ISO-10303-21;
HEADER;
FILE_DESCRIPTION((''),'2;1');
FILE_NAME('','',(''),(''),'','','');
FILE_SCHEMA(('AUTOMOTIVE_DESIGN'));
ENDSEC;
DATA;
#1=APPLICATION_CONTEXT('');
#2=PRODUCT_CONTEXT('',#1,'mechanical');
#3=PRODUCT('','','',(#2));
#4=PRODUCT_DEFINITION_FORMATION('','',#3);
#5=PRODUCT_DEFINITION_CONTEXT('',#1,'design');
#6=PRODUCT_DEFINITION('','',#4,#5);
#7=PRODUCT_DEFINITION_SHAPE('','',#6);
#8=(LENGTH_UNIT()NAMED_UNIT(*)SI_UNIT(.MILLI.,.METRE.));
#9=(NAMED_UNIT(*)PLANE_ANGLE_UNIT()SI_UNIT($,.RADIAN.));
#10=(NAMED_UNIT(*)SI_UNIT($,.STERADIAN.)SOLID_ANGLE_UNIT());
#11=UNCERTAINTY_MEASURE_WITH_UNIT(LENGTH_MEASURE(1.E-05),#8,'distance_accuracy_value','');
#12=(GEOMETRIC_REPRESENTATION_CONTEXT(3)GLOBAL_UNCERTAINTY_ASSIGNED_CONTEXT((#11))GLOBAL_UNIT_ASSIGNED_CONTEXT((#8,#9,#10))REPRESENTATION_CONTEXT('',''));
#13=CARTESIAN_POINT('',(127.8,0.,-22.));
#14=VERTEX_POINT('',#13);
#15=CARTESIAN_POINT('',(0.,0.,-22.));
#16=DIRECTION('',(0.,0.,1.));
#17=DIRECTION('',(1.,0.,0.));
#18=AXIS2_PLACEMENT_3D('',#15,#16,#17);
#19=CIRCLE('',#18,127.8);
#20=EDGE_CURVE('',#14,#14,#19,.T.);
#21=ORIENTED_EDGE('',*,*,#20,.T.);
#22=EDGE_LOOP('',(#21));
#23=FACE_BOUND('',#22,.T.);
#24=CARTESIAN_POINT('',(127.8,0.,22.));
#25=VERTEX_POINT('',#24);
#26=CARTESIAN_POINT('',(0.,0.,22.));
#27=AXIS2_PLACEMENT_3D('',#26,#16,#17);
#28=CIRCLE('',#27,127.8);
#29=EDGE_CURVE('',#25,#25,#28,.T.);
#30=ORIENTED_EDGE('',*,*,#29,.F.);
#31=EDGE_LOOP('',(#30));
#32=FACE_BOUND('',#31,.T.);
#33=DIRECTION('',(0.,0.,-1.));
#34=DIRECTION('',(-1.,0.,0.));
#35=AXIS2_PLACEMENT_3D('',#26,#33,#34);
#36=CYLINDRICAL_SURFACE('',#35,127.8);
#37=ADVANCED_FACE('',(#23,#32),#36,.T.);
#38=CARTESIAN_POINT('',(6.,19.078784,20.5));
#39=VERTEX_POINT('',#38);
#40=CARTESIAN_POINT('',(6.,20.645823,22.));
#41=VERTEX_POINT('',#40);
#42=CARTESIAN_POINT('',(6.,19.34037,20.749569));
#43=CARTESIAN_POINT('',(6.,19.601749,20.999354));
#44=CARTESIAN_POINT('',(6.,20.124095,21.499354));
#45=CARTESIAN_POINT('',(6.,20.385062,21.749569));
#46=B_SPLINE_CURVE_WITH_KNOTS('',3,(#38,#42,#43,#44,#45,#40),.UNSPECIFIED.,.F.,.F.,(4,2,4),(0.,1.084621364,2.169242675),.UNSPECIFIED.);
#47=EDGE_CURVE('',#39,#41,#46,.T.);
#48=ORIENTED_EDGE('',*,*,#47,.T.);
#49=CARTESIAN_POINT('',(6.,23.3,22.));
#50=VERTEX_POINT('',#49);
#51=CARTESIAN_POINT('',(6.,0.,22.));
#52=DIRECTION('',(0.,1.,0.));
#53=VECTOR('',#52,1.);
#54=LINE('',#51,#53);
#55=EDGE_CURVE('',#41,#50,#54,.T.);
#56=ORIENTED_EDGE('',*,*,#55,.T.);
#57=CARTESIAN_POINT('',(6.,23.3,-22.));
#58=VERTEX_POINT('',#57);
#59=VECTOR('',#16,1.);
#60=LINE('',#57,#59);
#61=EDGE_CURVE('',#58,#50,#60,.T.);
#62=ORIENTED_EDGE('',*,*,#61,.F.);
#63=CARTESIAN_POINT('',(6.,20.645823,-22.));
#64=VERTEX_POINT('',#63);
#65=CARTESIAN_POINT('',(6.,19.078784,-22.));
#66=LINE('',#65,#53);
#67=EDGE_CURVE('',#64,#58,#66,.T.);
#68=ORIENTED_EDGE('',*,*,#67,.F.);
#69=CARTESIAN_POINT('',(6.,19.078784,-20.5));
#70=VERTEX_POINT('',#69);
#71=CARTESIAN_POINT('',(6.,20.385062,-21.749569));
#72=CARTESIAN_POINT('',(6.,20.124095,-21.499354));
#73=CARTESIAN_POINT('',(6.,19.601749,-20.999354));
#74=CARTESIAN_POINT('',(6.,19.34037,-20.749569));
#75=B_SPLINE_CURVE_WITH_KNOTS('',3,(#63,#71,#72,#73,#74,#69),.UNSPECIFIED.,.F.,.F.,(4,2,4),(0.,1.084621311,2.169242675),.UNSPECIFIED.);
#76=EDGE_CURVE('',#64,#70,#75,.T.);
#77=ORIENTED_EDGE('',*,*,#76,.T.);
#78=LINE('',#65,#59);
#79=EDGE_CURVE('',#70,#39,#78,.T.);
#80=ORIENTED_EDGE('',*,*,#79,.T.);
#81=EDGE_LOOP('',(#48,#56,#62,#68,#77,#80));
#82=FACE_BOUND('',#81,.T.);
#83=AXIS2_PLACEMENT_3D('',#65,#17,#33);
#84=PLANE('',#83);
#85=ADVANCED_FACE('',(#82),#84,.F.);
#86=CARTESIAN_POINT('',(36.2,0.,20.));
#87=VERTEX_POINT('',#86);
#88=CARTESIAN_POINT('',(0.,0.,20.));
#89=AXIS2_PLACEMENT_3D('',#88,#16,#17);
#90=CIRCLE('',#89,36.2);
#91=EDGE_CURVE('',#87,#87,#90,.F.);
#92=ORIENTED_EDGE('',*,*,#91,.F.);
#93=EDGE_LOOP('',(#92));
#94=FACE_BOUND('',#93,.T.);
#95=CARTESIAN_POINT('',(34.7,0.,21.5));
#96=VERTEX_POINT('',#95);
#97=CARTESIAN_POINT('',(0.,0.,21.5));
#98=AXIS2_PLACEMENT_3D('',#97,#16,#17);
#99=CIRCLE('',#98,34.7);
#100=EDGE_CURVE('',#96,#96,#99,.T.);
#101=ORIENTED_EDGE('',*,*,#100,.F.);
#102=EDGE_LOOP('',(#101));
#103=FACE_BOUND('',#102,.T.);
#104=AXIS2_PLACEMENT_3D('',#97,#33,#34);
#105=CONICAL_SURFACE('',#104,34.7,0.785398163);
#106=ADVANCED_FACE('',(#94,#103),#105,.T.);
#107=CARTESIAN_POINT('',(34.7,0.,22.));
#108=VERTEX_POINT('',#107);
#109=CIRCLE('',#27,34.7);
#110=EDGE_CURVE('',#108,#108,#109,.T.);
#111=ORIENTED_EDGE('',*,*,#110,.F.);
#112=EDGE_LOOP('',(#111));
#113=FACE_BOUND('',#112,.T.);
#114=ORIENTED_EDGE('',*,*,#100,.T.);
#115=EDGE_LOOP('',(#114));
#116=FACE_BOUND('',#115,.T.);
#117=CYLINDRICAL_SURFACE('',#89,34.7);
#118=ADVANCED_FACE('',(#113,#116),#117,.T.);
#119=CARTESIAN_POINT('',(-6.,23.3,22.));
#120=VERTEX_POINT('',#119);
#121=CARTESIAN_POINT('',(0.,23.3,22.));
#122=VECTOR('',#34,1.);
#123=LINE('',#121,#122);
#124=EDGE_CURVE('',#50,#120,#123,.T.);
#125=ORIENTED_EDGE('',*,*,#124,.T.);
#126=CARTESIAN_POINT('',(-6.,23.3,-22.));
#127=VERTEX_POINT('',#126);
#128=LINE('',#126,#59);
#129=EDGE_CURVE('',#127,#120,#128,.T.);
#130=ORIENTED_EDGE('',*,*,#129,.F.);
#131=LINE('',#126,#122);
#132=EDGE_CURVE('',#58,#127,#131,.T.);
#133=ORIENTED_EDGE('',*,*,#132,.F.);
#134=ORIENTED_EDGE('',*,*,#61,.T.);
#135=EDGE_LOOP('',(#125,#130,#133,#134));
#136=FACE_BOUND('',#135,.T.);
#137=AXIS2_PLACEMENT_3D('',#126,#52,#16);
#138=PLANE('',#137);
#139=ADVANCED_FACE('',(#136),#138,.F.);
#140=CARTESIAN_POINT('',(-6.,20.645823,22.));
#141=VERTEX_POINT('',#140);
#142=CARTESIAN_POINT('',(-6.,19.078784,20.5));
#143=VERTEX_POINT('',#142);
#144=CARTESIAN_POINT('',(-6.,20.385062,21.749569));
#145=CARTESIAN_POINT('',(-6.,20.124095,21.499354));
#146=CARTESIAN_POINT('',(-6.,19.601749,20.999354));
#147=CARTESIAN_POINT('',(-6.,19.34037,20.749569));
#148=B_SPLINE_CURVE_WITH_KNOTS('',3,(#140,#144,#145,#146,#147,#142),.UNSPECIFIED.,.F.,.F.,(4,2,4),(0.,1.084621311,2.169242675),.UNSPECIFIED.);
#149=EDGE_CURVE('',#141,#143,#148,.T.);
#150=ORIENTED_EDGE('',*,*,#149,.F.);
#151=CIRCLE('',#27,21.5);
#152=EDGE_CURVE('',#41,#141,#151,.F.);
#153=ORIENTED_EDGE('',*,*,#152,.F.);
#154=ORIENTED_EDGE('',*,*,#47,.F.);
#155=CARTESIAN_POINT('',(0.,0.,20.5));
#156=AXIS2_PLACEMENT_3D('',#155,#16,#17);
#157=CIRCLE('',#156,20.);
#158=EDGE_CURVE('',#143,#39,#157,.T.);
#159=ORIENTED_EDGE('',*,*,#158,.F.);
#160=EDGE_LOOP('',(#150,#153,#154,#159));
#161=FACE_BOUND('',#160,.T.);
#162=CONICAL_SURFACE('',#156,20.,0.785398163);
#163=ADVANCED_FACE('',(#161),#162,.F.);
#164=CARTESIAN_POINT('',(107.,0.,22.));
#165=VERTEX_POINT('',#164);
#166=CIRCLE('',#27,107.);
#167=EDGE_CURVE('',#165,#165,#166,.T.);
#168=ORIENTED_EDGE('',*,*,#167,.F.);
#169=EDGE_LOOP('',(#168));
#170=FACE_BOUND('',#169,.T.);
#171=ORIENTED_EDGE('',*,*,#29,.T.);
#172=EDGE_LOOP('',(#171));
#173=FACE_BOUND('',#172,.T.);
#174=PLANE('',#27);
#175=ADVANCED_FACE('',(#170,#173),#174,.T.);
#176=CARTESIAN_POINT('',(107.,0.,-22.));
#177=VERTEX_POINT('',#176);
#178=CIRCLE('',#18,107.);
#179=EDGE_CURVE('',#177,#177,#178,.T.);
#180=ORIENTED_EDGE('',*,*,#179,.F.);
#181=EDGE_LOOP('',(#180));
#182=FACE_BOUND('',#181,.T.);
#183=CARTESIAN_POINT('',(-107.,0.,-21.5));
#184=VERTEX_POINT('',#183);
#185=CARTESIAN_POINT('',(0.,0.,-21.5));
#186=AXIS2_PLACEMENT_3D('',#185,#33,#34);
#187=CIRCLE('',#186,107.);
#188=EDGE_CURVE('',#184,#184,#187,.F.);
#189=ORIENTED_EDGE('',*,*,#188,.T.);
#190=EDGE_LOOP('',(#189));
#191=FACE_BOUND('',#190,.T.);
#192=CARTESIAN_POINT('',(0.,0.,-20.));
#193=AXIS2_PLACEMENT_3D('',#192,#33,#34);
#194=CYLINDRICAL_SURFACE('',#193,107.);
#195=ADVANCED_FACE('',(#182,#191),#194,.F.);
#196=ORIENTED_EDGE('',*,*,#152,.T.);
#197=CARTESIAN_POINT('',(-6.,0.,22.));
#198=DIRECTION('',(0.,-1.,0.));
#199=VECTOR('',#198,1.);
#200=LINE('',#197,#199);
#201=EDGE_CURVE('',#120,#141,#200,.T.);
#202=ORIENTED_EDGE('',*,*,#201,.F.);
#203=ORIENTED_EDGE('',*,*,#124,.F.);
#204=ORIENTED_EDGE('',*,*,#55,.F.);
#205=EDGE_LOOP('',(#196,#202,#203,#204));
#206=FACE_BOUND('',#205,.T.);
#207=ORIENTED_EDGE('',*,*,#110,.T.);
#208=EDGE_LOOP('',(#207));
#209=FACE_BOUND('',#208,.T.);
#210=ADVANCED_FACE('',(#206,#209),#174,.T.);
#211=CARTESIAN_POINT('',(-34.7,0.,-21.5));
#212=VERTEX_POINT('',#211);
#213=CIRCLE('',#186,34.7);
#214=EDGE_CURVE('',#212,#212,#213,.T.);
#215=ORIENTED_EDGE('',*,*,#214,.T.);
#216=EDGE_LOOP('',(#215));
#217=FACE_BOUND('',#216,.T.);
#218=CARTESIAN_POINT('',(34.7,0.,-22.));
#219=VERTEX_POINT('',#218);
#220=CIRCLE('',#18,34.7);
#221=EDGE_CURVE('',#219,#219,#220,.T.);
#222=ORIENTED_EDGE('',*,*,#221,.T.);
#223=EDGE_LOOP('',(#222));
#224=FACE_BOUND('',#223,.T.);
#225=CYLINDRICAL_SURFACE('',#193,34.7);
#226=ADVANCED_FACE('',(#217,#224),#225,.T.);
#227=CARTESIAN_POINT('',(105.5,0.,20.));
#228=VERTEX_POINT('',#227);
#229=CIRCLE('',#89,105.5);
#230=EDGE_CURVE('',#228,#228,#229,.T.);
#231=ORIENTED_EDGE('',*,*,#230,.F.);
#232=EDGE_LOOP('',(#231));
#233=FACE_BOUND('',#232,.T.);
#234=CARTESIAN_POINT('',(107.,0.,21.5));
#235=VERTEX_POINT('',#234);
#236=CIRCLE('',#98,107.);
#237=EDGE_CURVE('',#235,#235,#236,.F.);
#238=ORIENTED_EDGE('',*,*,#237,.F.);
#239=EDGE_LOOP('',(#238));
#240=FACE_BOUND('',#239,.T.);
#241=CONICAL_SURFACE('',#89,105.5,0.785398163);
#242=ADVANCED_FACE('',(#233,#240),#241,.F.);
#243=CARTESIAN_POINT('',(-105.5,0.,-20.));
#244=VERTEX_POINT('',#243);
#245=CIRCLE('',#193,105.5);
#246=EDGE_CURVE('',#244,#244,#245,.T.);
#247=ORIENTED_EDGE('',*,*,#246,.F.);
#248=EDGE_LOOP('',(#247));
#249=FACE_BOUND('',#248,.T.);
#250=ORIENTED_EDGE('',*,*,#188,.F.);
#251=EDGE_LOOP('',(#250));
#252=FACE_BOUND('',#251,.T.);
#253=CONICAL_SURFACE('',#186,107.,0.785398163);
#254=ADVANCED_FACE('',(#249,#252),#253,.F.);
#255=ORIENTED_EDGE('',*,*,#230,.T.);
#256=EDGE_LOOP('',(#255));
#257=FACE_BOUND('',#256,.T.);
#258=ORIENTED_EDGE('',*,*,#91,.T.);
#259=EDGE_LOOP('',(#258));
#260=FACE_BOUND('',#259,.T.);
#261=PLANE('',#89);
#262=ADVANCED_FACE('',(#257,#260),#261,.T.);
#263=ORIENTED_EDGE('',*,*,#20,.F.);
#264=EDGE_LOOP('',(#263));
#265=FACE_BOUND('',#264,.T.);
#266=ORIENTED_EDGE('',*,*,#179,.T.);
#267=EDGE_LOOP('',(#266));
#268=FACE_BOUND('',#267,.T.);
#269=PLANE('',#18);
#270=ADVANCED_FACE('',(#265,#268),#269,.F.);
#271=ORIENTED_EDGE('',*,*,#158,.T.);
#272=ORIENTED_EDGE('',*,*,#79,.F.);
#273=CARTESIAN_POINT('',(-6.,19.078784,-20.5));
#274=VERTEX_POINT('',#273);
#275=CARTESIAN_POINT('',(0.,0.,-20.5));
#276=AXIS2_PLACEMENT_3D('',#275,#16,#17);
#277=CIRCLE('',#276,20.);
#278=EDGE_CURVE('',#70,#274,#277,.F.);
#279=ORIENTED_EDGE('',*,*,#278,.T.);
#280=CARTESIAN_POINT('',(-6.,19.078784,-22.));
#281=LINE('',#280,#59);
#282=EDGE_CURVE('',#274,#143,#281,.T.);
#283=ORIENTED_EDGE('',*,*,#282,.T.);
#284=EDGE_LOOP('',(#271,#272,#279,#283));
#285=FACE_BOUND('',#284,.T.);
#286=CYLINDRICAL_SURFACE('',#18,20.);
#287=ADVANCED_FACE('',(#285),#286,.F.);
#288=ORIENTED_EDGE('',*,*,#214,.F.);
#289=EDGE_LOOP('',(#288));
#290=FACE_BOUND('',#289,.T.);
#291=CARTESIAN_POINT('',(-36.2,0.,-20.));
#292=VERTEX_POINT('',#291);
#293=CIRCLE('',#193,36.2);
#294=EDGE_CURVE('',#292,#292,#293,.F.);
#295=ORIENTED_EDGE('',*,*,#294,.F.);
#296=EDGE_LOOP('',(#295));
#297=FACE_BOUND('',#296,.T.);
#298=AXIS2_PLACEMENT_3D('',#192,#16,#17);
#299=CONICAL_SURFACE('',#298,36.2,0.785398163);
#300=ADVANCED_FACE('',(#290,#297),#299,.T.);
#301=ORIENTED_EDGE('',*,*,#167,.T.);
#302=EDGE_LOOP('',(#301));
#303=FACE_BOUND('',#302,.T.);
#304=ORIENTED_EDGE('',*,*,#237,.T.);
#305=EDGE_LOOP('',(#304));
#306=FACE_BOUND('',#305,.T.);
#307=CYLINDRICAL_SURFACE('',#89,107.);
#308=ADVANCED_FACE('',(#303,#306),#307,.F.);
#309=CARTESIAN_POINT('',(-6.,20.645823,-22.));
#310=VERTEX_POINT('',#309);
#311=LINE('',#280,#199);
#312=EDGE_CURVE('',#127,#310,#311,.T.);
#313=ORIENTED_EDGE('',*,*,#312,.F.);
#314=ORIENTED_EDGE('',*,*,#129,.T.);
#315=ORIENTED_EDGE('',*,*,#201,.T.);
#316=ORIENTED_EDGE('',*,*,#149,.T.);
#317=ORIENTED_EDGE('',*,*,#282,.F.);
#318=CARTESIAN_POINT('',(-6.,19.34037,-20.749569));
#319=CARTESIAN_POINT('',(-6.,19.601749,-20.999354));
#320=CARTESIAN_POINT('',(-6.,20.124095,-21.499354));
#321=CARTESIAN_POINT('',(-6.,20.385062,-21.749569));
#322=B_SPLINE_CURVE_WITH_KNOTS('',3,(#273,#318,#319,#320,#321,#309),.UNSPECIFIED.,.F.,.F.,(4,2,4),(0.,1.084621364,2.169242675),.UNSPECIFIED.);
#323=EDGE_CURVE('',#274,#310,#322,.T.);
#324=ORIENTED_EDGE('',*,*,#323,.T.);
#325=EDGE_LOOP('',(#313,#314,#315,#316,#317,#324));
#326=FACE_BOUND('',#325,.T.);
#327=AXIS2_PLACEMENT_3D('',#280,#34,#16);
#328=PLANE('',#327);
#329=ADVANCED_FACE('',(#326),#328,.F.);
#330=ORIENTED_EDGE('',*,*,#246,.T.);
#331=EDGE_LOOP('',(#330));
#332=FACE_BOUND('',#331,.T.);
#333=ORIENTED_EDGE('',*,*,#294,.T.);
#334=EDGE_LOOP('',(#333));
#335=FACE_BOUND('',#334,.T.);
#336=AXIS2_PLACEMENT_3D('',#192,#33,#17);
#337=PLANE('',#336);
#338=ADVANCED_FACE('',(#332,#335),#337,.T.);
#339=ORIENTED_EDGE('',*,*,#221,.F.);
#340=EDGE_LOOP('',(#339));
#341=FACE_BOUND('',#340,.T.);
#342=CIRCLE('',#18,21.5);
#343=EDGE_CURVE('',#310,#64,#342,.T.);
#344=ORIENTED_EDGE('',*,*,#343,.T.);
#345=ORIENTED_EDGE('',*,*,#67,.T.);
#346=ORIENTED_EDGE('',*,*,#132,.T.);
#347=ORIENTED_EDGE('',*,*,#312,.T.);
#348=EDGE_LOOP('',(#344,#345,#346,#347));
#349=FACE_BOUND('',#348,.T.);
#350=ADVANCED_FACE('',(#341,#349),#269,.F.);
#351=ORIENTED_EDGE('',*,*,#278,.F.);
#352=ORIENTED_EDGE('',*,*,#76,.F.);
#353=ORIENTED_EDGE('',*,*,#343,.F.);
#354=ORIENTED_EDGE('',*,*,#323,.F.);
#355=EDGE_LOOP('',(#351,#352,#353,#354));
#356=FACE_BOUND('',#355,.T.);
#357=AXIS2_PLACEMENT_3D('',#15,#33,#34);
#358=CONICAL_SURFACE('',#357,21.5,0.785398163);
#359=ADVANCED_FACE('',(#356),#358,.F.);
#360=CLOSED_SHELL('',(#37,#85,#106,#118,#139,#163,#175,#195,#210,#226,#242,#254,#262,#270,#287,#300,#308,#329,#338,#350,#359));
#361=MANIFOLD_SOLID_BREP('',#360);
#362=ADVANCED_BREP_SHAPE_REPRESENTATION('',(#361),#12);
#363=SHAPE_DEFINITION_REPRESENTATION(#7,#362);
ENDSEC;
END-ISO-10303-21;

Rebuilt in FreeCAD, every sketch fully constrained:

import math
import FreeCAD as App
import Part
import Sketcher


def edges_at(feature, points):
    """Names of the edges that pass closest to the given points."""
    edges = feature.Shape.Edges
    near = lambda p: min(range(len(edges)), key=lambda i: edges[i].distToShape(Part.Vertex(*p))[0])
    return sorted({f"Edge{near(p) + 1}" for p in points})

doc = App.newDocument("Part")
body = doc.addObject("PartDesign::Body", "Body")

sketch1 = body.newObject("Sketcher::SketchObject", "Sketch")
sketch1.AttachmentSupport = (doc.getObject("XY_Plane"), [""])
sketch1.MapMode = "FlatFace"
sketch1.addGeometry(Part.Circle(App.Vector(0, 0, 0), App.Vector(0, 0, 1), 127.8), False)
sketch1.addConstraint([
    Sketcher.Constraint("Coincident", 0, 3, -1, 1),
    Sketcher.Constraint("Diameter", 0, 255.6),
])
pad1 = body.newObject("PartDesign::Pad", "Pad")
pad1.Profile = sketch1
pad1.Length = 44
pad1.Midplane = True

sketch2 = body.newObject("Sketcher::SketchObject", "Sketch001")
sketch2.AttachmentSupport = (doc.getObject("XY_Plane"), [""])
sketch2.MapMode = "FlatFace"
sketch2.AttachmentOffset = App.Placement(App.Vector(0, 0, 22), App.Rotation())
sketch2.addGeometry([
    Part.LineSegment(App.Vector(-6, 23.3, 0), App.Vector(-6, 19.078784, 0)),
    Part.ArcOfCircle(Part.Circle(App.Vector(0, 0, 0), App.Vector(0, 0, 1), 20), math.radians(107.457603), math.radians(432.542397)),
    Part.LineSegment(App.Vector(6, 19.078784, 0), App.Vector(6, 23.3, 0)),
    Part.LineSegment(App.Vector(6, 23.3, 0), App.Vector(-6, 23.3, 0)),
], False)
sketch2.addConstraint([
    Sketcher.Constraint("Coincident", 0, 2, 1, 1),
    Sketcher.Constraint("Coincident", 1, 2, 2, 1),
    Sketcher.Constraint("Coincident", 2, 2, 3, 1),
    Sketcher.Constraint("Coincident", 3, 2, 0, 1),
    Sketcher.Constraint("Vertical", 0),
    Sketcher.Constraint("Vertical", 2),
    Sketcher.Constraint("Horizontal", 3),
    Sketcher.Constraint("Coincident", 1, 3, -1, 1),
    Sketcher.Constraint("Horizontal", 0, 2, 1, 2),
    Sketcher.Constraint("Radius", 1, 20.0),
    Sketcher.Constraint("DistanceX", 3, 2, 3, 1, 12.0),
    Sketcher.Constraint("DistanceY", -1, 1, 2, 2, 23.3),
])
pocket1 = body.newObject("PartDesign::Pocket", "Pocket")
pocket1.Profile = sketch2
pocket1.Type = "ThroughAll"
pocket1.Midplane = True

sketch3 = body.newObject("Sketcher::SketchObject", "Sketch002")
sketch3.AttachmentSupport = (doc.getObject("XY_Plane"), [""])
sketch3.MapMode = "FlatFace"
sketch3.AttachmentOffset = App.Placement(App.Vector(0, 0, 22), App.Rotation())
sketch3.addGeometry([
    Part.Circle(App.Vector(0, 0, 0), App.Vector(0, 0, 1), 107),
    Part.Circle(App.Vector(0, 0, 0), App.Vector(0, 0, 1), 34.7),
], False)
sketch3.addConstraint([
    Sketcher.Constraint("Coincident", 0, 3, -1, 1),
    Sketcher.Constraint("Coincident", 1, 3, -1, 1),
    Sketcher.Constraint("Diameter", 0, 214.0),
    Sketcher.Constraint("Diameter", 1, 69.4),
])
pocket2 = body.newObject("PartDesign::Pocket", "Pocket001")
pocket2.Profile = sketch3
pocket2.Length = 2
doc.recompute()

mirrored = body.newObject("PartDesign::Mirrored", "Mirrored")
mirrored.Originals = [pocket2]
mirrored.MirrorPlane = (doc.getObject("XY_Plane"), [""])
body.Tip = mirrored
doc.recompute()

chamfer = body.newObject("PartDesign::Chamfer", "Chamfer")
chamfer.Base = (mirrored, edges_at(mirrored, [(-107, 0, 20)]))
chamfer.Size = 1.5
doc.recompute()

chamfer2 = body.newObject("PartDesign::Chamfer", "Chamfer001")
chamfer2.Base = (chamfer, edges_at(chamfer, [(-34.7, 0, 20)]))
chamfer2.Size = 1.5
doc.recompute()

chamfer3 = body.newObject("PartDesign::Chamfer", "Chamfer002")
chamfer3.Base = (chamfer2, edges_at(chamfer2, [(0, -20, 22)]))
chamfer3.Size = 1.5
doc.recompute()

chamfer4 = body.newObject("PartDesign::Chamfer", "Chamfer003")
chamfer4.Base = (chamfer3, edges_at(chamfer3, [(0, -20, -22), (-107, 0, -20), (-34.7, 0, -20)]))
chamfer4.Size = 1.5

doc.recompute()
